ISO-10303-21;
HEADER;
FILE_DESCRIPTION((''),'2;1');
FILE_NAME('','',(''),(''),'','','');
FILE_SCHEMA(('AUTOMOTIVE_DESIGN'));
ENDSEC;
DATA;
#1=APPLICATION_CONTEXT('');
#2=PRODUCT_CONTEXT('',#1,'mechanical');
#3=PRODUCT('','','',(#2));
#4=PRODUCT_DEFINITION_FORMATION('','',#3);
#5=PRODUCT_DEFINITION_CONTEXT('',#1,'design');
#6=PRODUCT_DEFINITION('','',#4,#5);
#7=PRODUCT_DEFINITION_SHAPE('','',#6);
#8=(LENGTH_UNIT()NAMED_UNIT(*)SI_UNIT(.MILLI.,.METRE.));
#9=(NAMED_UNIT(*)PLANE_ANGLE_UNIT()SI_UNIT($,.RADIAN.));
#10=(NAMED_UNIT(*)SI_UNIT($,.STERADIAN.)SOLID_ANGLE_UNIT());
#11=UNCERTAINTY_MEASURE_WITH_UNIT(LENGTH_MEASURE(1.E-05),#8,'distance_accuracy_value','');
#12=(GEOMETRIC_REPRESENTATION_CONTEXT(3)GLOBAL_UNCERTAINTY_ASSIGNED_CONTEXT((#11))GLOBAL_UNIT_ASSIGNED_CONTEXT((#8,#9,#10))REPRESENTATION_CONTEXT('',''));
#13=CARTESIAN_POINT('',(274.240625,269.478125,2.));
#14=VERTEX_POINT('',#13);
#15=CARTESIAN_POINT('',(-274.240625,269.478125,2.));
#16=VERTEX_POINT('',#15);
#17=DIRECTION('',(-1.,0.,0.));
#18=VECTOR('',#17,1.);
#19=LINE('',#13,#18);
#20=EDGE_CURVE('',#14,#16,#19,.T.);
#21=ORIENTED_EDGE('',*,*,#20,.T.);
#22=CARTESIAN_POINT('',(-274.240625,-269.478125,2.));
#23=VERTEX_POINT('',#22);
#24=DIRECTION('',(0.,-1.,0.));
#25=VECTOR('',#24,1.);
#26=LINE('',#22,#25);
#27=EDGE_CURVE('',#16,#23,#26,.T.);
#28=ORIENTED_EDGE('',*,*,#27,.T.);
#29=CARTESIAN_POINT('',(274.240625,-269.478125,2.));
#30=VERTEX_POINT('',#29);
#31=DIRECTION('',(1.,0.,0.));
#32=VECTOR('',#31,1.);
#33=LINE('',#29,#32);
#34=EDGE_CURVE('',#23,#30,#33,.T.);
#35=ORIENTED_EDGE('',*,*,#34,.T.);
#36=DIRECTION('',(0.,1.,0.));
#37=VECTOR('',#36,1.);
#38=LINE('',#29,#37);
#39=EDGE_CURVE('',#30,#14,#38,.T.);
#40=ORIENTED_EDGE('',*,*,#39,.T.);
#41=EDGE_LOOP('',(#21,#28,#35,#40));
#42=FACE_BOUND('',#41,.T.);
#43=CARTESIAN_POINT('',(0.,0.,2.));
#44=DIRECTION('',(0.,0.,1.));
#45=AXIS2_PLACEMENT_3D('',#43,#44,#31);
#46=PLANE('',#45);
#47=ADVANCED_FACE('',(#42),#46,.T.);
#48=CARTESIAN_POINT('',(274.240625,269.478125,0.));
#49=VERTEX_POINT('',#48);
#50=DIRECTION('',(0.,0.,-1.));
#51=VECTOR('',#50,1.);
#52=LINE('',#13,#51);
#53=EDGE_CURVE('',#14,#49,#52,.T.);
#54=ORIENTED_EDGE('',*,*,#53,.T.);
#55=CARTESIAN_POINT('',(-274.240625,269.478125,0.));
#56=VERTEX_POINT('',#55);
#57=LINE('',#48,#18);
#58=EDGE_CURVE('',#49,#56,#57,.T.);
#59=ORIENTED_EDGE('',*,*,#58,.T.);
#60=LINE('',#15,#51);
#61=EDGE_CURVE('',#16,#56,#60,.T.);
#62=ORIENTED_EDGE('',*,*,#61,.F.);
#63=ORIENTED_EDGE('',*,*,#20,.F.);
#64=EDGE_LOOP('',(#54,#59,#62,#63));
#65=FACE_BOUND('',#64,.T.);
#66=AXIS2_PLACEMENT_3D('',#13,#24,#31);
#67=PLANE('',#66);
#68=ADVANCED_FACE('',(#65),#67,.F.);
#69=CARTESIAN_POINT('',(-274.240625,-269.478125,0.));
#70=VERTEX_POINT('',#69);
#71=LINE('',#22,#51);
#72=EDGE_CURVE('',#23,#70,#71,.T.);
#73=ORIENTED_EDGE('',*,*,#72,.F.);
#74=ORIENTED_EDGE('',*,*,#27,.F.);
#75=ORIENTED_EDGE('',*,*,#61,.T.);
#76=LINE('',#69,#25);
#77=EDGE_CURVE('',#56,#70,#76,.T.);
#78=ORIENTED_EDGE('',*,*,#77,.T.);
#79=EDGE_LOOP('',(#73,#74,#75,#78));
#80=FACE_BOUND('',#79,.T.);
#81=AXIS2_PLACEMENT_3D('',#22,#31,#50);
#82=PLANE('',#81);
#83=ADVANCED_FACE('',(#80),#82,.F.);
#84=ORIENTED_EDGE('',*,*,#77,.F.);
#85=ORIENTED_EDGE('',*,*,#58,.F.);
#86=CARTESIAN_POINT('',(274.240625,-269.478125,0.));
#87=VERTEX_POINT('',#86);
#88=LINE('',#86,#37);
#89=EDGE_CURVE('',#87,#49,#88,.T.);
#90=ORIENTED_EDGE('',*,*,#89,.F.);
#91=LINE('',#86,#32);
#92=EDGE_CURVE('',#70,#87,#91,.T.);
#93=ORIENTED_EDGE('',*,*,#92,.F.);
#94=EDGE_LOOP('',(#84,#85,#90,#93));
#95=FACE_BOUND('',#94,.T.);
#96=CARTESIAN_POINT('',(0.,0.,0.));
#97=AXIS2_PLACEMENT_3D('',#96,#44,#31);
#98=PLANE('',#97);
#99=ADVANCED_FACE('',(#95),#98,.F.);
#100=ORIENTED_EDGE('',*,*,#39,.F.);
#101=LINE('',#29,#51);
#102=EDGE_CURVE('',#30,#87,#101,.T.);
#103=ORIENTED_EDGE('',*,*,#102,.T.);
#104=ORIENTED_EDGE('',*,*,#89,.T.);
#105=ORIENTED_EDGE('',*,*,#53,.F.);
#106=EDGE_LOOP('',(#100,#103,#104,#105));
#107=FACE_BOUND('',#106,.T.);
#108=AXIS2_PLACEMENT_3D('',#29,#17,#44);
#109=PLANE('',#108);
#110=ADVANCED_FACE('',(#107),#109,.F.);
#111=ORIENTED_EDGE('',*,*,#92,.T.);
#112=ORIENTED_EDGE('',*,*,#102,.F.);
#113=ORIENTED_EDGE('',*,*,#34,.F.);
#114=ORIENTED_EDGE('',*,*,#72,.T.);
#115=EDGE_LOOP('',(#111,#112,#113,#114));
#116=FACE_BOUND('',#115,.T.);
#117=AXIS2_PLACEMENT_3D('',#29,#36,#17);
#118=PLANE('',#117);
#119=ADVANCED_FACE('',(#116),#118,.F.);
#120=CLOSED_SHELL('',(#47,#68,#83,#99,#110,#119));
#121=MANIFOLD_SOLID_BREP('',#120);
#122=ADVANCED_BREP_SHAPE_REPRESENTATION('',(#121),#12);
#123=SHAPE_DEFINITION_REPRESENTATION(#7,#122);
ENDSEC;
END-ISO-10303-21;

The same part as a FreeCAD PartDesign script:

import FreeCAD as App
import Part
import Sketcher
from FreeCAD import Vector
Q = App.Units.Quantity

doc = App.newDocument("Part")
body = doc.addObject("PartDesign::Body", "Body")

sketch1 = body.newObject("Sketcher::SketchObject", "Sketch")
sketch1.AttachmentSupport = (doc.getObject("XY_Plane"), [""])
sketch1.MapMode = "FlatFace"
sketch1.addGeometry([
    Part.LineSegment(Vector(-274.240625, 269.478125, 0), Vector(-274.240625, -269.478125, 0)),
    Part.LineSegment(Vector(-274.240625, -269.478125, 0), Vector(274.240625, -269.478125, 0)),
    Part.LineSegment(Vector(274.240625, -269.478125, 0), Vector(274.240625, 269.478125, 0)),
    Part.LineSegment(Vector(274.240625, 269.478125, 0), Vector(-274.240625, 269.478125, 0)),
], False)
sketch1.addConstraint([
    Sketcher.Constraint("Coincident", 0, 2, 1, 1),
    Sketcher.Constraint("Coincident", 1, 2, 2, 1),
    Sketcher.Constraint("Coincident", 2, 2, 3, 1),
    Sketcher.Constraint("Coincident", 3, 2, 0, 1),
    Sketcher.Constraint("Vertical", 0),
    Sketcher.Constraint("Horizontal", 1),
    Sketcher.Constraint("Vertical", 2),
    Sketcher.Constraint("Horizontal", 3),
    Sketcher.Constraint("Symmetric", 0, 2, 2, 2, -1, 1),
    Sketcher.Constraint("DistanceX", 1, 1, 1, 2, Q("21.59375 in")),
    Sketcher.Constraint("DistanceY", 0, 2, 0, 1, Q("21.21875 in")),
])
pad1 = body.newObject("PartDesign::Pad", "Pad")
pad1.Profile = sketch1
pad1.Length = 2

doc.recompute()
